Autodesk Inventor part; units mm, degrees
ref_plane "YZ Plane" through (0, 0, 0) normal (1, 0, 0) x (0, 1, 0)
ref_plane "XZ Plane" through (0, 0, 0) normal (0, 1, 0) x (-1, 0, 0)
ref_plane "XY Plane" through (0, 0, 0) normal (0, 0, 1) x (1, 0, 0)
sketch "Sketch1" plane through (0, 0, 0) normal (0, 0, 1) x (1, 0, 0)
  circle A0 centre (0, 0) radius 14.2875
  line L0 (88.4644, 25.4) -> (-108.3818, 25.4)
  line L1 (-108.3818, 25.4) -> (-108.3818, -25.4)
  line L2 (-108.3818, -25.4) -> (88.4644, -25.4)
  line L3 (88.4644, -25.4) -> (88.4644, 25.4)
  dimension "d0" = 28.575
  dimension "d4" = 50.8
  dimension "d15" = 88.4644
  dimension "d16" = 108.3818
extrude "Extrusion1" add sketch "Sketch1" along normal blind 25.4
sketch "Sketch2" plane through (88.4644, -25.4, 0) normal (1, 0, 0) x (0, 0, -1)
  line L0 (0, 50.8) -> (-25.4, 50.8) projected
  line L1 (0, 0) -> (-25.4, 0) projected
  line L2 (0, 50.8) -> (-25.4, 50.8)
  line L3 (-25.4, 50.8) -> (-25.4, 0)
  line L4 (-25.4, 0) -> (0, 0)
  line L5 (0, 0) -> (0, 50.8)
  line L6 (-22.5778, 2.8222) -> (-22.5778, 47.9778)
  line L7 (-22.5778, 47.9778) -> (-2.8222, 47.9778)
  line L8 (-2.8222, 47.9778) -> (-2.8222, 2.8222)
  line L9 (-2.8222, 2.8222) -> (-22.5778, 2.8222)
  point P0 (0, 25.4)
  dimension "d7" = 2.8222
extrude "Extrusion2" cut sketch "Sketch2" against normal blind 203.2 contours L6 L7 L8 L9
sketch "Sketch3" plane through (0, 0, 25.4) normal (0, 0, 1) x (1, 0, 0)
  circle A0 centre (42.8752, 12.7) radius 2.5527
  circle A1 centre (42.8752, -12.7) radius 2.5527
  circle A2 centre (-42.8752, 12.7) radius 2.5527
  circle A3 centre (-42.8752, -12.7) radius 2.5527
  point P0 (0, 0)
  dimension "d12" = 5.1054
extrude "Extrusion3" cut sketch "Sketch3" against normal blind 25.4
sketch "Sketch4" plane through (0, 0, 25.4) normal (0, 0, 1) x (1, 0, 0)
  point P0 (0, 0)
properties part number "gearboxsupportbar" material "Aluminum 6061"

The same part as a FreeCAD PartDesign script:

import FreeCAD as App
import Part
import Sketcher
Q = App.Units.Quantity

doc = App.newDocument("Part")
body = doc.addObject("PartDesign::Body", "Body")

sketch1 = body.newObject("Sketcher::SketchObject", "Sketch")
sketch1.AttachmentSupport = (doc.getObject("XY_Plane"), [""])
sketch1.MapMode = "FlatFace"
sketch1.addGeometry([
    Part.LineSegment(App.Vector(88, -25, 0), App.Vector(88, 25, 0)),
    Part.LineSegment(App.Vector(88, 25, 0), App.Vector(-108, 25, 0)),
    Part.LineSegment(App.Vector(-108, 25, 0), App.Vector(-108, -25, 0)),
    Part.LineSegment(App.Vector(-108, -25, 0), App.Vector(88, -25, 0)),
    Part.Circle(App.Vector(0, 0, 0), App.Vector(0, 0, 1), 14),
], False)
sketch1.addConstraint([
    Sketcher.Constraint("Coincident", 0, 2, 1, 1),
    Sketcher.Constraint("Coincident", 1, 2, 2, 1),
    Sketcher.Constraint("Coincident", 2, 2, 3, 1),
    Sketcher.Constraint("Coincident", 3, 2, 0, 1),
    Sketcher.Constraint("Vertical", 0),
    Sketcher.Constraint("Horizontal", 1),
    Sketcher.Constraint("Vertical", 2),
    Sketcher.Constraint("Horizontal", 3),
    Sketcher.Constraint("Coincident", 4, 3, -1, 1),
    Sketcher.Constraint("DistanceY", 0, 1, 0, 2, Q("2 in")),
    Sketcher.Constraint("Diameter", 4, Q("1.125 in")),
    Sketcher.Constraint("DistanceX", 1, 2, -1, 1, Q("4.267 in")),
    Sketcher.Constraint("DistanceY", -1, 1, 0, 2, Q("1 in")),
    Sketcher.Constraint("DistanceX", -1, 1, 0, 2, 88.4644),
])
pad1 = body.newObject("PartDesign::Pad", "Pad")
pad1.Profile = sketch1
pad1.Length = Q("1 in")

sketch2 = body.newObject("Sketcher::SketchObject", "Sketch001")
sketch2.AttachmentSupport = (doc.getObject("YZ_Plane"), [""])
sketch2.MapMode = "FlatFace"
sketch2.AttachmentOffset = App.Placement(App.Vector(0, 0, 88.4644), App.Rotation())
sketch2.addGeometry([
    Part.LineSegment(App.Vector(23, 23, 0), App.Vector(-23, 23, 0)),
    Part.LineSegment(App.Vector(-23, 23, 0), App.Vector(-23, 3, 0)),
    Part.LineSegment(App.Vector(-23, 3, 0), App.Vector(23, 3, 0)),
    Part.LineSegment(App.Vector(23, 3, 0), App.Vector(23, 23, 0)),
], False)
sketch2.addConstraint([
    Sketcher.Constraint("Coincident", 0, 2, 1, 1),
    Sketcher.Constraint("Coincident", 1, 2, 2, 1),
    Sketcher.Constraint("Coincident", 2, 2, 3, 1),
    Sketcher.Constraint("Coincident", 3, 2, 0, 1),
    Sketcher.Constraint("Horizontal", 0),
    Sketcher.Constraint("Vertical", 1),
    Sketcher.Constraint("Horizontal", 2),
    Sketcher.Constraint("Vertical", 3),
    Sketcher.Constraint("DistanceY", -1, 1, 1, 2, Q("0.1111 in")),
    Sketcher.Constraint("DistanceX", 0, 2, 0, 1, 45.1556),
    Sketcher.Constraint("DistanceY", 1, 2, 1, 1, 19.7556),
    Sketcher.Constraint("DistanceX", 0, 2, -1, 1, Q("0.8889 in")),
])
pocket1 = body.newObject("PartDesign::Pocket", "Pocket")
pocket1.Profile = sketch2
pocket1.Length = Q("8 in")

sketch3 = body.newObject("Sketcher::SketchObject", "Sketch002")
sketch3.AttachmentSupport = (doc.getObject("XY_Plane"), [""])
sketch3.MapMode = "FlatFace"
sketch3.AttachmentOffset = App.Placement(App.Vector(0, 0, 1 * 25.4), App.Rotation())
sketch3.addGeometry([
    Part.Circle(App.Vector(42.9, 12.7, 0), App.Vector(0, 0, 1), 2.6),
    Part.Circle(App.Vector(42.9, -12.7, 0), App.Vector(0, 0, 1), 2.6),
    Part.Circle(App.Vector(-42.9, 12.7, 0), App.Vector(0, 0, 1), 2.6),
    Part.Circle(App.Vector(-42.9, -12.7, 0), App.Vector(0, 0, 1), 2.6),
], False)
sketch3.addConstraint([
    Sketcher.Constraint("Equal", 0, 1),
    Sketcher.Constraint("Equal", 1, 2),
    Sketcher.Constraint("Equal", 2, 3),
    Sketcher.Constraint("Symmetric", 1, 3, 2, 3, -1, 1),
    Sketcher.Constraint("Symmetric", 0, 3, 3, 3, -1, 1),
    Sketcher.Constraint("Symmetric", 0, 3, 2, 3, -2),
    Sketcher.Constraint("Diameter", 0, Q("0.201 in")),
    Sketcher.Constraint("DistanceY", 1, 3, 0, 3, Q("1 in")),
    Sketcher.Constraint("DistanceX", -1, 1, 0, 3, Q("1.688 in")),
])
pocket2 = body.newObject("PartDesign::Pocket", "Pocket001")
pocket2.Profile = sketch3
pocket2.Length = Q("1 in")

doc.recompute()
